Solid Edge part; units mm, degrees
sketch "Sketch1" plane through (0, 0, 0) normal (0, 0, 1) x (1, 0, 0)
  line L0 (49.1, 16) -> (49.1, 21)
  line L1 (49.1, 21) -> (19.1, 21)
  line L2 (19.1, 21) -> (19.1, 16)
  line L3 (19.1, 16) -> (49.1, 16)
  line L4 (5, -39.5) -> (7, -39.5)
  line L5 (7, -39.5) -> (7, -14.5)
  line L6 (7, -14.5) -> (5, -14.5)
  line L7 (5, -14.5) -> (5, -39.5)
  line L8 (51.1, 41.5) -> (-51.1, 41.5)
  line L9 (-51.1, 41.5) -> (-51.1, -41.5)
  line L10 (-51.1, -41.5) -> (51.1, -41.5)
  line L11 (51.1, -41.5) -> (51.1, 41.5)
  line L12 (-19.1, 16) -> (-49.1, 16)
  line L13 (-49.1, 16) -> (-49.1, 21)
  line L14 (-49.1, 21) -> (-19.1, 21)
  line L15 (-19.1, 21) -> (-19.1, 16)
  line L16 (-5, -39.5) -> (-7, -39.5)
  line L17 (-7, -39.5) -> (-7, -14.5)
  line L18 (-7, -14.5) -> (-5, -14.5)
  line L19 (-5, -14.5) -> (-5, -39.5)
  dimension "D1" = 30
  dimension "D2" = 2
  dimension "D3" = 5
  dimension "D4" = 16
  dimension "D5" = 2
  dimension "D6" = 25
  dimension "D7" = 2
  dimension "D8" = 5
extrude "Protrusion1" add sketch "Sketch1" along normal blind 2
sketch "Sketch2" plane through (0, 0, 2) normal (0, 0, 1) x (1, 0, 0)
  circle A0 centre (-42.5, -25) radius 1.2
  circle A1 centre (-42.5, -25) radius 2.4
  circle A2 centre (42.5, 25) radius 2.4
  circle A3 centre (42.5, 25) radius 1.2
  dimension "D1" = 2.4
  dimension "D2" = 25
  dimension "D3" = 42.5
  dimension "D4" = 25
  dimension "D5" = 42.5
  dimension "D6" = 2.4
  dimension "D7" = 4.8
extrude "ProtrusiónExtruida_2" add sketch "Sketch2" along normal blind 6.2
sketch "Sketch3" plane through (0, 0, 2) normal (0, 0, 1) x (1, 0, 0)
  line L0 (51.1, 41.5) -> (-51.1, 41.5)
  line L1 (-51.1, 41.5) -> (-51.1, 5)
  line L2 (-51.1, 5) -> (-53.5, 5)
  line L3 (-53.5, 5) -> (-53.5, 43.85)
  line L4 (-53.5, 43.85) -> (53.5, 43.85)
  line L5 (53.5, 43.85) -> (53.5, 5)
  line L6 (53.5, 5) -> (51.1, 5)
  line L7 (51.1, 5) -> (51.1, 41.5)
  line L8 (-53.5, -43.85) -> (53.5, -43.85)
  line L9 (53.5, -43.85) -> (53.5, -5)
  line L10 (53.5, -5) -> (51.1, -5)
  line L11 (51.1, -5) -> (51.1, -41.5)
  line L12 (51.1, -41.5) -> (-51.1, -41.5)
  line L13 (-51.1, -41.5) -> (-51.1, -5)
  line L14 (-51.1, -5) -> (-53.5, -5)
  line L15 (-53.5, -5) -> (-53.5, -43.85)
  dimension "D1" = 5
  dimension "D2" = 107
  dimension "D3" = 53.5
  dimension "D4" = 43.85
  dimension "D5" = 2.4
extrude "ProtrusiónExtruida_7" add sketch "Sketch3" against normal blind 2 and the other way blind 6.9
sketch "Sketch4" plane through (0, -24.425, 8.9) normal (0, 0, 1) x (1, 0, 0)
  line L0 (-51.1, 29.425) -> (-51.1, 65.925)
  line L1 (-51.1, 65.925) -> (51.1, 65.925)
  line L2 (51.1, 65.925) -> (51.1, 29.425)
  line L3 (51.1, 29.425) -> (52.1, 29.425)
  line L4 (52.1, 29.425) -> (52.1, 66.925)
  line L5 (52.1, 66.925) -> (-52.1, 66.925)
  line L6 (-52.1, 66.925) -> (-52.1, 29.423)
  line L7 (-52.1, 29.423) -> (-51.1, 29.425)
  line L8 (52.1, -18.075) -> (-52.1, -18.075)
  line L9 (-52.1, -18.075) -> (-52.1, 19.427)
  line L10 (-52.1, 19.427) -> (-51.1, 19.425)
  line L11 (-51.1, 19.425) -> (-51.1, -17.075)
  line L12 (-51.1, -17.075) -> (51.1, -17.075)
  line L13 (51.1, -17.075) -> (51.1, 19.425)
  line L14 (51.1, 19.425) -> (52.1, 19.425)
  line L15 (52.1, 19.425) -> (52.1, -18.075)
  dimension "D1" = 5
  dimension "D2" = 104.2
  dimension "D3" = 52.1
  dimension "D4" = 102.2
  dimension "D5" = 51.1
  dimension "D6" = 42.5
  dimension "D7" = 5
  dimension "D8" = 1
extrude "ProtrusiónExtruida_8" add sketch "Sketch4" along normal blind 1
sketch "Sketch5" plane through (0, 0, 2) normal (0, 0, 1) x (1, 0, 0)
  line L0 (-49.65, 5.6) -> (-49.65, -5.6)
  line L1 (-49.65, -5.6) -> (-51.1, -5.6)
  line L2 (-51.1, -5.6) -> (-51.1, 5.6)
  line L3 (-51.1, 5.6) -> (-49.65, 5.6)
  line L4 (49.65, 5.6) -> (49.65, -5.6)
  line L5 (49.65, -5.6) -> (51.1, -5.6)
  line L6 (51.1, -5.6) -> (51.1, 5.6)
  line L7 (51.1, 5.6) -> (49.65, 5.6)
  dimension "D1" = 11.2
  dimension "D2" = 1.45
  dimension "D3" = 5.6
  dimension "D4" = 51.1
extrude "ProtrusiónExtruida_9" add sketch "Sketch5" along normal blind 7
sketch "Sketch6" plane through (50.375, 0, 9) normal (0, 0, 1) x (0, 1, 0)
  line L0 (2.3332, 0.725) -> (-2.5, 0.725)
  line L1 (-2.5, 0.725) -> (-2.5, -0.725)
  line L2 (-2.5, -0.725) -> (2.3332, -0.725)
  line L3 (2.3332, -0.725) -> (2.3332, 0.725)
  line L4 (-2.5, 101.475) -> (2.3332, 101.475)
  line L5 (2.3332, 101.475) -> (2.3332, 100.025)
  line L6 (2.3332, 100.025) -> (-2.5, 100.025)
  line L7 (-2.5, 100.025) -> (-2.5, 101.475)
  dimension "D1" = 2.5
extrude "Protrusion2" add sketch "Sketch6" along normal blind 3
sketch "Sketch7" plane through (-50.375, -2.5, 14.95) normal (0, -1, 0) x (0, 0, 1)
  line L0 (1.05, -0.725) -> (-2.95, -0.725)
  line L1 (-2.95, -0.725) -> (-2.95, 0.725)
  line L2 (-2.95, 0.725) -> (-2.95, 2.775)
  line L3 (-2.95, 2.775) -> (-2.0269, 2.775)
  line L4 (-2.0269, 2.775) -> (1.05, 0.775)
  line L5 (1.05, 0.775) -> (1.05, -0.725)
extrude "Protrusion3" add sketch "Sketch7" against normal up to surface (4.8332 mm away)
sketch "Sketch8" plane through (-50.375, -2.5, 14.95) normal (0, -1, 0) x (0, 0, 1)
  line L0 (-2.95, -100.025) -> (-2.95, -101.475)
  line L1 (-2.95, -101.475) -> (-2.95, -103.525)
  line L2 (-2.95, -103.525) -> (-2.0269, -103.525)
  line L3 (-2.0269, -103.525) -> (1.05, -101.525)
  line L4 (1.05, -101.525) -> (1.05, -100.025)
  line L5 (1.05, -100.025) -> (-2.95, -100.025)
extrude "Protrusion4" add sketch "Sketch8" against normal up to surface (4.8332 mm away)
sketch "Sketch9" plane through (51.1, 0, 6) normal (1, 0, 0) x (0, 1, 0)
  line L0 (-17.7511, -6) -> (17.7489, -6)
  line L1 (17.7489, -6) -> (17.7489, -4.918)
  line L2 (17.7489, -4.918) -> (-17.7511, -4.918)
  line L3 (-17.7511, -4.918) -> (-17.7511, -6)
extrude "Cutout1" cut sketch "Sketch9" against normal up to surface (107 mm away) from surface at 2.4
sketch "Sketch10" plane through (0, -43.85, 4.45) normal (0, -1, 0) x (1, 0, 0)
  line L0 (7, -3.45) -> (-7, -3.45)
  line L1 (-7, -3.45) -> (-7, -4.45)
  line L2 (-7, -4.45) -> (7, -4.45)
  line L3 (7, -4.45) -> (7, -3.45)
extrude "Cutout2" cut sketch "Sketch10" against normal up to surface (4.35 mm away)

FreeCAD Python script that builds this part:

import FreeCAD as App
import Part
import Sketcher
from FreeCAD import Vector

doc = App.newDocument("Part")
body = doc.addObject("PartDesign::Body", "Body")

sketch1 = body.newObject("Sketcher::SketchObject", "Sketch")
sketch1.AttachmentSupport = (doc.getObject("XY_Plane"), [""])
sketch1.MapMode = "FlatFace"
sketch1.addGeometry([
    Part.LineSegment(Vector(51.1, -41.5, 0), Vector(51.1, 41.5, 0)),
    Part.LineSegment(Vector(51.1, 41.5, 0), Vector(-51.1, 41.5, 0)),
    Part.LineSegment(Vector(-51.1, 41.5, 0), Vector(-51.1, -41.5, 0)),
    Part.LineSegment(Vector(-51.1, -41.5, 0), Vector(51.1, -41.5, 0)),
    Part.LineSegment(Vector(-5, -14.5, 0), Vector(-5, -39.5, 0)),
    Part.LineSegment(Vector(-5, -39.5, 0), Vector(-7, -39.5, 0)),
    Part.LineSegment(Vector(-7, -39.5, 0), Vector(-7, -14.5, 0)),
    Part.LineSegment(Vector(-7, -14.5, 0), Vector(-5, -14.5, 0)),
    Part.LineSegment(Vector(7, -39.5, 0), Vector(5, -39.5, 0)),
    Part.LineSegment(Vector(5, -39.5, 0), Vector(5, -14.5, 0)),
    Part.LineSegment(Vector(5, -14.5, 0), Vector(7, -14.5, 0)),
    Part.LineSegment(Vector(7, -14.5, 0), Vector(7, -39.5, 0)),
    Part.LineSegment(Vector(-19.1, 21, 0), Vector(-19.1, 16, 0)),
    Part.LineSegment(Vector(-19.1, 16, 0), Vector(-49.1, 16, 0)),
    Part.LineSegment(Vector(-49.1, 16, 0), Vector(-49.1, 21, 0)),
    Part.LineSegment(Vector(-49.1, 21, 0), Vector(-19.1, 21, 0)),
    Part.LineSegment(Vector(49.1, 21, 0), Vector(49.1, 16, 0)),
    Part.LineSegment(Vector(49.1, 16, 0), Vector(19.1, 16, 0)),
    Part.LineSegment(Vector(19.1, 16, 0), Vector(19.1, 21, 0)),
    Part.LineSegment(Vector(19.1, 21, 0), Vector(49.1, 21, 0)),
], False)
sketch1.addConstraint([
    Sketcher.Constraint("Coincident", 0, 2, 1, 1),
    Sketcher.Constraint("Coincident", 1, 2, 2, 1),
    Sketcher.Constraint("Coincident", 2, 2, 3, 1),
    Sketcher.Constraint("Coincident", 3, 2, 0, 1),
    Sketcher.Constraint("Coincident", 4, 2, 5, 1),
    Sketcher.Constraint("Coincident", 5, 2, 6, 1),
    Sketcher.Constraint("Coincident", 6, 2, 7, 1),
    Sketcher.Constraint("Coincident", 7, 2, 4, 1),
    Sketcher.Constraint("Coincident", 8, 2, 9, 1),
    Sketcher.Constraint("Coincident", 9, 2, 10, 1),
    Sketcher.Constraint("Coincident", 10, 2, 11, 1),
    Sketcher.Constraint("Coincident", 11, 2, 8, 1),
    Sketcher.Constraint("Coincident", 12, 2, 13, 1),
    Sketcher.Constraint("Coincident", 13, 2, 14, 1),
    Sketcher.Constraint("Coincident", 14, 2, 15, 1),
    Sketcher.Constraint("Coincident", 15, 2, 12, 1),
    Sketcher.Constraint("Coincident", 16, 2, 17, 1),
    Sketcher.Constraint("Coincident", 17, 2, 18, 1),
    Sketcher.Constraint("Coincident", 18, 2, 19, 1),
    Sketcher.Constraint("Coincident", 19, 2, 16, 1),
    Sketcher.Constraint("Vertical", 0),
    Sketcher.Constraint("Horizontal", 1),
    Sketcher.Constraint("Vertical", 2),
    Sketcher.Constraint("Horizontal", 3),
    Sketcher.Constraint("Vertical", 4),
    Sketcher.Constraint("Horizontal", 5),
    Sketcher.Constraint("Vertical", 6),
    Sketcher.Constraint("Horizontal", 7),
    Sketcher.Constraint("Horizontal", 8),
    Sketcher.Constraint("Vertical", 9),
    Sketcher.Constraint("Horizontal", 10),
    Sketcher.Constraint("Vertical", 11),
    Sketcher.Constraint("Vertical", 12),
    Sketcher.Constraint("Horizontal", 13),
    Sketcher.Constraint("Vertical", 14),
    Sketcher.Constraint("Horizontal", 15),
    Sketcher.Constraint("Vertical", 16),
    Sketcher.Constraint("Horizontal", 17),
    Sketcher.Constraint("Vertical", 18),
    Sketcher.Constraint("Horizontal", 19),
    Sketcher.Constraint("Symmetric", 0, 2, 2, 2, -1, 1),
    Sketcher.Constraint("Symmetric", 4, 2, 8, 2, -2),
    Sketcher.Constraint("Symmetric", 6, 2, 10, 2, -2),
    Sketcher.Constraint("Symmetric", 13, 2, 16, 2, -2),
    Sketcher.Constraint("Symmetric", 15, 2, 18, 2, -2),
    Sketcher.Constraint("DistanceX", 5, 2, 5, 1, 2.0),
    Sketcher.Constraint("DistanceX", 13, 2, 13, 1, 30.0),
    Sketcher.Constraint("DistanceY", 0, 1, 0, 2, 83.0),
    Sketcher.Constraint("DistanceY", 4, 2, 4, 1, 25.0),
    Sketcher.Constraint("DistanceY", 12, 2, 12, 1, 5.0),
    Sketcher.Constraint("DistanceX", 1, 2, 1, 1, 102.2),
    Sketcher.Constraint("DistanceX", 4, 2, -1, 1, 5.0),
    Sketcher.Constraint("DistanceY", -1, 1, 12, 2, 16.0),
    Sketcher.Constraint("DistanceY", 2, 2, 4, 2, 2.0),
    Sketcher.Constraint("DistanceX", 1, 2, 12, 2, 32.0),
])
pad1 = body.newObject("PartDesign::Pad", "Pad")
pad1.Profile = sketch1
pad1.Length = 2

sketch2 = body.newObject("Sketcher::SketchObject", "Sketch001")
sketch2.AttachmentSupport = (doc.getObject("XY_Plane"), [""])
sketch2.MapMode = "FlatFace"
sketch2.AttachmentOffset = App.Placement(Vector(0, 0, 2), App.Rotation())
sketch2.addGeometry([
    Part.Circle(Vector(-42.5, -25, 0), Vector(0, 0, 1), 2.4),
    Part.Circle(Vector(-42.5, -25, 0), Vector(0, 0, 1), 1.2),
    Part.Circle(Vector(42.5, 25, 0), Vector(0, 0, 1), 2.4),
    Part.Circle(Vector(42.5, 25, 0), Vector(0, 0, 1), 1.2),
], False)
sketch2.addConstraint([
    Sketcher.Constraint("Coincident", 1, 3, 0, 3),
    Sketcher.Constraint("Coincident", 3, 3, 2, 3),
    Sketcher.Constraint("Equal", 0, 2),
    Sketcher.Constraint("Equal", 1, 3),
    Sketcher.Constraint("Symmetric", 0, 3, 2, 3, -1, 1),
    Sketcher.Constraint("Diameter", 0, 4.8),
    Sketcher.Constraint("Diameter", 1, 2.4),
    Sketcher.Constraint("DistanceY", 0, 3, -1, 1, 25.0),
    Sketcher.Constraint("DistanceX", 0, 3, 2, 3, 85.0),
])
pad2 = body.newObject("PartDesign::Pad", "Pad001")
pad2.Profile = sketch2
pad2.Length = 6.2

sketch3 = body.newObject("Sketcher::SketchObject", "Sketch002")
sketch3.AttachmentSupport = (doc.getObject("XY_Plane"), [""])
sketch3.MapMode = "FlatFace"
sketch3.AttachmentOffset = App.Placement(Vector(0, 0, 2), App.Rotation())
sketch3.addGeometry([
    Part.LineSegment(Vector(-51.1, 41.5, 0), Vector(51.1, 41.5, 0)),
    Part.LineSegment(Vector(51.1, 41.5, 0), Vector(51.1, 5, 0)),
    Part.LineSegment(Vector(51.1, 5, 0), Vector(53.5, 5, 0)),
    Part.LineSegment(Vector(53.5, 5, 0), Vector(53.5, 43.85, 0)),
    Part.LineSegment(Vector(53.5, 43.85, 0), Vector(-53.5, 43.85, 0)),
    Part.LineSegment(Vector(-53.5, 43.85, 0), Vector(-53.5, 5, 0)),
    Part.LineSegment(Vector(-53.5, 5, 0), Vector(-51.1, 5, 0)),
    Part.LineSegment(Vector(-51.1, 5, 0), Vector(-51.1, 41.5, 0)),
    Part.LineSegment(Vector(-53.5, -5, 0), Vector(-53.5, -43.85, 0)),
    Part.LineSegment(Vector(-53.5, -43.85, 0), Vector(53.5, -43.85, 0)),
    Part.LineSegment(Vector(53.5, -43.85, 0), Vector(53.5, -5, 0)),
    Part.LineSegment(Vector(53.5, -5, 0), Vector(51.1, -5, 0)),
    Part.LineSegment(Vector(51.1, -5, 0), Vector(51.1, -41.5, 0)),
    Part.LineSegment(Vector(51.1, -41.5, 0), Vector(-51.1, -41.5, 0)),
    Part.LineSegment(Vector(-51.1, -41.5, 0), Vector(-51.1, -5, 0)),
    Part.LineSegment(Vector(-51.1, -5, 0), Vector(-53.5, -5, 0)),
], False)
sketch3.addConstraint([
    Sketcher.Constraint("Coincident", 0, 2, 1, 1),
    Sketcher.Constraint("Coincident", 1, 2, 2, 1),
    Sketcher.Constraint("Coincident", 2, 2, 3, 1),
    Sketcher.Constraint("Coincident", 3, 2, 4, 1),
    Sketcher.Constraint("Coincident", 4, 2, 5, 1),
    Sketcher.Constraint("Coincident", 5, 2, 6, 1),
    Sketcher.Constraint("Coincident", 6, 2, 7, 1),
    Sketcher.Constraint("Coincident", 7, 2, 0, 1),
    Sketcher.Constraint("Coincident", 8, 2, 9, 1),
    Sketcher.Constraint("Coincident", 9, 2, 10, 1),
    Sketcher.Constraint("Coincident", 10, 2, 11, 1),
    Sketcher.Constraint("Coincident", 11, 2, 12, 1),
    Sketcher.Constraint("Coincident", 12, 2, 13, 1),
    Sketcher.Constraint("Coincident", 13, 2, 14, 1),
    Sketcher.Constraint("Coincident", 14, 2, 15, 1),
    Sketcher.Constraint("Coincident", 15, 2, 8, 1),
    Sketcher.Constraint("Horizontal", 0),
    Sketcher.Constraint("Vertical", 1),
    Sketcher.Constraint("Horizontal", 2),
    Sketcher.Constraint("Vertical", 3),
    Sketcher.Constraint("Horizontal", 4),
    Sketcher.Constraint("Vertical", 5),
    Sketcher.Constraint("Horizontal", 6),
    Sketcher.Constraint("Vertical", 7),
    Sketcher.Constraint("Vertical", 8),
    Sketcher.Constraint("Horizontal", 9),
    Sketcher.Constraint("Vertical", 10),
    Sketcher.Constraint("Horizontal", 11),
    Sketcher.Constraint("Vertical", 12),
    Sketcher.Constraint("Horizontal", 13),
    Sketcher.Constraint("Vertical", 14),
    Sketcher.Constraint("Horizontal", 15),
    Sketcher.Constraint("Symmetric", 3, 2, 8, 2, -1, 1),
    Sketcher.Constraint("Symmetric", 5, 2, 10, 2, -1, 1),
    Sketcher.Constraint("Symmetric", 7, 2, 12, 2, -1, 1),
    Sketcher.Constraint("Symmetric", 1, 2, 14, 2, -1, 1),
    Sketcher.Constraint("Symmetric", 2, 2, 5, 2, -2),
    Sketcher.Constraint("Vertical", 1, 2, 11, 2),
    Sketcher.Constraint("DistanceX", 4, 2, 4, 1, 107.0),
    Sketcher.Constraint("DistanceX", 0, 1, 0, 2, 102.2),
    Sketcher.Constraint("DistanceY", 1, 2, 1, 1, 36.5),
    Sketcher.Constraint("DistanceY", -1, 1, 1, 2, 5.0),
    Sketcher.Constraint("DistanceY", 3, 1, 3, 2, 38.85),
])
pad3 = body.newObject("PartDesign::Pad", "Pad002")
pad3.Profile = sketch3
pad3.Type = "TwoLengths"
pad3.Length = 2
pad3.Length2 = 6.9
pad3.Reversed = True

sketch4 = body.newObject("Sketcher::SketchObject", "Sketch003")
sketch4.AttachmentSupport = (doc.getObject("XY_Plane"), [""])
sketch4.MapMode = "FlatFace"
sketch4.AttachmentOffset = App.Placement(Vector(0, 0, 8.9), App.Rotation())
sketch4.addGeometry([
    Part.LineSegment(Vector(-52.1, 4.998, 0), Vector(-51.1, 5, 0)),
    Part.LineSegment(Vector(-51.1, 5, 0), Vector(-51.1, 41.5, 0)),
    Part.LineSegment(Vector(-51.1, 41.5, 0), Vector(51.1, 41.5, 0)),
    Part.LineSegment(Vector(51.1, 41.5, 0), Vector(51.1, 5, 0)),
    Part.LineSegment(Vector(51.1, 5, 0), Vector(52.1, 5, 0)),
    Part.LineSegment(Vector(52.1, 5, 0), Vector(52.1, 42.5, 0)),
    Part.LineSegment(Vector(52.1, 42.5, 0), Vector(-52.1, 42.5, 0)),
    Part.LineSegment(Vector(-52.1, 42.5, 0), Vector(-52.1, 4.998, 0)),
    Part.LineSegment(Vector(-52.1, -42.5, 0), Vector(52.1, -42.5, 0)),
    Part.LineSegment(Vector(52.1, -42.5, 0), Vector(52.1, -5, 0)),
    Part.LineSegment(Vector(52.1, -5, 0), Vector(51.1, -5, 0)),
    Part.LineSegment(Vector(51.1, -5, 0), Vector(51.1, -41.5, 0)),
    Part.LineSegment(Vector(51.1, -41.5, 0), Vector(-51.1, -41.5, 0)),
    Part.LineSegment(Vector(-51.1, -41.5, 0), Vector(-51.1, -5, 0)),
    Part.LineSegment(Vector(-51.1, -5, 0), Vector(-52.1, -4.998, 0)),
    Part.LineSegment(Vector(-52.1, -4.998, 0), Vector(-52.1, -42.5, 0)),
], False)
sketch4.addConstraint([
    Sketcher.Constraint("Coincident", 0, 2, 1, 1),
    Sketcher.Constraint("Coincident", 1, 2, 2, 1),
    Sketcher.Constraint("Coincident", 2, 2, 3, 1),
    Sketcher.Constraint("Coincident", 3, 2, 4, 1),
    Sketcher.Constraint("Coincident", 4, 2, 5, 1),
    Sketcher.Constraint("Coincident", 5, 2, 6, 1),
    Sketcher.Constraint("Coincident", 6, 2, 7, 1),
    Sketcher.Constraint("Coincident", 7, 2, 0, 1),
    Sketcher.Constraint("Coincident", 8, 2, 9, 1),
    Sketcher.Constraint("Coincident", 9, 2, 10, 1),
    Sketcher.Constraint("Coincident", 10, 2, 11, 1),
    Sketcher.Constraint("Coincident", 11, 2, 12, 1),
    Sketcher.Constraint("Coincident", 12, 2, 13, 1),
    Sketcher.Constraint("Coincident", 13, 2, 14, 1),
    Sketcher.Constraint("Coincident", 14, 2, 15, 1),
    Sketcher.Constraint("Coincident", 15, 2, 8, 1),
    Sketcher.Constraint("Vertical", 1),
    Sketcher.Constraint("Horizontal", 2),
    Sketcher.Constraint("Vertical", 3),
    Sketcher.Constraint("Horizontal", 4),
    Sketcher.Constraint("Vertical", 5),
    Sketcher.Constraint("Horizontal", 6),
    Sketcher.Constraint("Vertical", 7),
    Sketcher.Constraint("Horizontal", 8),
    Sketcher.Constraint("Vertical", 9),
    Sketcher.Constraint("Horizontal", 10),
    Sketcher.Constraint("Vertical", 11),
    Sketcher.Constraint("Horizontal", 12),
    Sketcher.Constraint("Vertical", 13),
    Sketcher.Constraint("Vertical", 15),
    Sketcher.Constraint("Symmetric", 6, 2, 8, 2, -1, 1),
    Sketcher.Constraint("Symmetric", 0, 2, 10, 2, -1, 1),
    Sketcher.Constraint("Symmetric", 2, 2, 12, 2, -1, 1),
    Sketcher.Constraint("Symmetric", 0, 2, 3, 2, -2),
    Sketcher.Constraint("Symmetric", 7, 2, 14, 2, -1),
    Sketcher.Constraint("Horizontal", 10, 2, 13, 2),
    Sketcher.Constraint("Vertical", 5, 2, 8, 2),
    Sketcher.Constraint("DistanceX", 4, 1, 4, 2, 1.0),
    Sketcher.Constraint("DistanceX", 2, 1, 2, 2, 102.2),
    Sketcher.Constraint("DistanceY", 1, 1, 1, 2, 36.5),
    Sketcher.Constraint("DistanceY", 5, 1, 5, 2, 37.5),
    Sketcher.Constraint("DistanceY", -1, 1, 0, 2, 5.0),
    Sketcher.Constraint("DistanceY", 7, 2, 7, 1, 37.502),
])
pad4 = body.newObject("PartDesign::Pad", "Pad003")
pad4.Profile = sketch4
pad4.Length = 1

sketch5 = body.newObject("Sketcher::SketchObject", "Sketch004")
sketch5.AttachmentSupport = (doc.getObject("XY_Plane"), [""])
sketch5.MapMode = "FlatFace"
sketch5.AttachmentOffset = App.Placement(Vector(0, 0, 2), App.Rotation())
sketch5.addGeometry([
    Part.LineSegment(Vector(-49.65, -5.6, 0), Vector(-49.65, 5.6, 0)),
    Part.LineSegment(Vector(-49.65, 5.6, 0), Vector(-51.1, 5.6, 0)),
    Part.LineSegment(Vector(-51.1, 5.6, 0), Vector(-51.1, -5.6, 0)),
    Part.LineSegment(Vector(-51.1, -5.6, 0), Vector(-49.65, -5.6, 0)),
    Part.LineSegment(Vector(51.1, 5.6, 0), Vector(49.65, 5.6, 0)),
    Part.LineSegment(Vector(49.65, 5.6, 0), Vector(49.65, -5.6, 0)),
    Part.LineSegment(Vector(49.65, -5.6, 0), Vector(51.1, -5.6, 0)),
    Part.LineSegment(Vector(51.1, -5.6, 0), Vector(51.1, 5.6, 0)),
], False)
sketch5.addConstraint([
    Sketcher.Constraint("Coincident", 0, 2, 1, 1),
    Sketcher.Constraint("Coincident", 1, 2, 2, 1),
    Sketcher.Constraint("Coincident", 2, 2, 3, 1),
    Sketcher.Constraint("Coincident", 3, 2, 0, 1),
    Sketcher.Constraint("Coincident", 4, 2, 5, 1),
    Sketcher.Constraint("Coincident", 5, 2, 6, 1),
    Sketcher.Constraint("Coincident", 6, 2, 7, 1),
    Sketcher.Constraint("Coincident", 7, 2, 4, 1),
    Sketcher.Constraint("Vertical", 0),
    Sketcher.Constraint("Horizontal", 1),
    Sketcher.Constraint("Vertical", 2),
    Sketcher.Constraint("Horizontal", 3),
    Sketcher.Constraint("Horizontal", 4),
    Sketcher.Constraint("Vertical", 5),
    Sketcher.Constraint("Horizontal", 6),
    Sketcher.Constraint("Vertical", 7),
    Sketcher.Constraint("Symmetric", 3, 2, 4, 2, -1, 1),
    Sketcher.Constraint("Symmetric", 1, 2, 6, 2, -1, 1),
    Sketcher.Constraint("Horizontal", 1, 2, 4, 2),
    Sketcher.Constraint("DistanceY", 0, 1, 0, 2, 11.2),
    Sketcher.Constraint("DistanceX", 1, 2, 1, 1, 1.45),
    Sketcher.Constraint("DistanceX", 1, 2, -1, 1, 51.1),
])
pad5 = body.newObject("PartDesign::Pad", "Pad004")
pad5.Profile = sketch5
pad5.Length = 7

sketch6 = body.newObject("Sketcher::SketchObject", "Sketch005")
sketch6.AttachmentSupport = (doc.getObject("XY_Plane"), [""])
sketch6.MapMode = "FlatFace"
sketch6.AttachmentOffset = App.Placement(Vector(0, 0, 9), App.Rotation())
sketch6.addGeometry([
    Part.LineSegment(Vector(51.1, 2.3332, 0), Vector(49.65, 2.3332, 0)),
    Part.LineSegment(Vector(49.65, 2.3332, 0), Vector(49.65, -2.5, 0)),
    Part.LineSegment(Vector(49.65, -2.5, 0), Vector(51.1, -2.5, 0)),
    Part.LineSegment(Vector(51.1, -2.5, 0), Vector(51.1, 2.3332, 0)),
    Part.LineSegment(Vector(-51.1, 2.3332, 0), Vector(-51.1, -2.5, 0)),
    Part.LineSegment(Vector(-51.1, -2.5, 0), Vector(-49.65, -2.5, 0)),
    Part.LineSegment(Vector(-49.65, -2.5, 0), Vector(-49.65, 2.3332, 0)),
    Part.LineSegment(Vector(-49.65, 2.3332, 0), Vector(-51.1, 2.3332, 0)),
], False)
sketch6.addConstraint([
    Sketcher.Constraint("Coincident", 0, 2, 1, 1),
    Sketcher.Constraint("Coincident", 1, 2, 2, 1),
    Sketcher.Constraint("Coincident", 2, 2, 3, 1),
    Sketcher.Constraint("Coincident", 3, 2, 0, 1),
    Sketcher.Constraint("Coincident", 4, 2, 5, 1),
    Sketcher.Constraint("Coincident", 5, 2, 6, 1),
    Sketcher.Constraint("Coincident", 6, 2, 7, 1),
    Sketcher.Constraint("Coincident", 7, 2, 4, 1),
    Sketcher.Constraint("Horizontal", 0),
    Sketcher.Constraint("Vertical", 1),
    Sketcher.Constraint("Horizontal", 2),
    Sketcher.Constraint("Vertical", 3),
    Sketcher.Constraint("Vertical", 4),
    Sketcher.Constraint("Horizontal", 5),
    Sketcher.Constraint("Vertical", 6),
    Sketcher.Constraint("Horizontal", 7),
    Sketcher.Constraint("Symmetric", 2, 2, 4, 2, -2),
    Sketcher.Constraint("Symmetric", 0, 2, 6, 2, -2),
    Sketcher.Constraint("DistanceX", 0, 2, 0, 1, 1.45),
    Sketcher.Constraint("DistanceY", 1, 2, -1, 1, 2.5),
    Sketcher.Constraint("DistanceX", -1, 1, 2, 2, 51.1),
    Sketcher.Constraint("DistanceY", 1, 2, 1, 1, 4.8332),
])
pad6 = body.newObject("PartDesign::Pad", "Pad005")
pad6.Profile = sketch6
pad6.Length = 3

sketch7 = body.newObject("Sketcher::SketchObject", "Sketch006")
sketch7.AttachmentSupport = (doc.getObject("XZ_Plane"), [""])
sketch7.MapMode = "FlatFace"
sketch7.AttachmentOffset = App.Placement(Vector(0, 0, 2.5), App.Rotation())
sketch7.addGeometry([
    Part.LineSegment(Vector(-49.65, 12, 0), Vector(-49.65, 16, 0)),
    Part.LineSegment(Vector(-49.65, 16, 0), Vector(-51.15, 16, 0)),
    Part.LineSegment(Vector(-51.15, 16, 0), Vector(-53.15, 12.9231, 0)),
    Part.LineSegment(Vector(-53.15, 12.9231, 0), Vector(-53.15, 12, 0)),
    Part.LineSegment(Vector(-53.15, 12, 0), Vector(-49.65, 12, 0)),
], False)
sketch7.addConstraint([
    Sketcher.Constraint("Coincident", 0, 2, 1, 1),
    Sketcher.Constraint("Coincident", 1, 2, 2, 1),
    Sketcher.Constraint("Coincident", 2, 2, 3, 1),
    Sketcher.Constraint("Coincident", 3, 2, 4, 1),
    Sketcher.Constraint("Coincident", 4, 2, 0, 1),
    Sketcher.Constraint("Vertical", 0),
    Sketcher.Constraint("Horizontal", 1),
    Sketcher.Constraint("Vertical", 3),
    Sketcher.Constraint("Horizontal", 4),
    Sketcher.Constraint("DistanceY", 0, 1, 0, 2, 4.0),
    Sketcher.Constraint("DistanceX", 1, 2, 1, 1, 1.5),
    Sketcher.Constraint("DistanceX", 4, 1, 4, 2, 3.5),
    Sketcher.Constraint("DistanceY", -1, 1, 0, 2, 16.0),
    Sketcher.Constraint("DistanceY", 3, 2, 3, 1, 0.923),
    Sketcher.Constraint("DistanceX", 0, 2, -1, 1, 49.65),
])
pad7 = body.newObject("PartDesign::Pad", "Pad006")
pad7.Profile = sketch7
pad7.Length = 4.8332
pad7.Reversed = True

sketch8 = body.newObject("Sketcher::SketchObject", "Sketch007")
sketch8.AttachmentSupport = (doc.getObject("XZ_Plane"), [""])
sketch8.MapMode = "FlatFace"
sketch8.AttachmentOffset = App.Placement(Vector(0, 0, 2.5), App.Rotation())
sketch8.addGeometry([
    Part.LineSegment(Vector(49.65, 16, 0), Vector(49.65, 12, 0)),
    Part.LineSegment(Vector(49.65, 12, 0), Vector(53.15, 12, 0)),
    Part.LineSegment(Vector(53.15, 12, 0), Vector(53.15, 12.9231, 0)),
    Part.LineSegment(Vector(53.15, 12.9231, 0), Vector(51.15, 16, 0)),
    Part.LineSegment(Vector(51.15, 16, 0), Vector(49.65, 16, 0)),
], False)
sketch8.addConstraint([
    Sketcher.Constraint("Coincident", 0, 2, 1, 1),
    Sketcher.Constraint("Coincident", 1, 2, 2, 1),
    Sketcher.Constraint("Coincident", 2, 2, 3, 1),
    Sketcher.Constraint("Coincident", 3, 2, 4, 1),
    Sketcher.Constraint("Coincident", 4, 2, 0, 1),
    Sketcher.Constraint("Vertical", 0),
    Sketcher.Constraint("Horizontal", 1),
    Sketcher.Constraint("Vertical", 2),
    Sketcher.Constraint("Horizontal", 4),
    Sketcher.Constraint("DistanceY", 0, 2, 0, 1, 4.0),
    Sketcher.Constraint("DistanceX", 1, 1, 1, 2, 3.5),
    Sketcher.Constraint("DistanceX", 4, 2, 4, 1, 1.5),
    Sketcher.Constraint("DistanceY", -1, 1, 0, 2, 12.0),
    Sketcher.Constraint("DistanceY", 2, 1, 2, 2, 0.923),
    Sketcher.Constraint("DistanceX", -1, 1, 0, 2, 49.65),
])
pad8 = body.newObject("PartDesign::Pad", "Pad007")
pad8.Profile = sketch8
pad8.Length = 4.8332
pad8.Reversed = True

sketch9 = body.newObject("Sketcher::SketchObject", "Sketch008")
sketch9.AttachmentSupport = (doc.getObject("YZ_Plane"), [""])
sketch9.MapMode = "FlatFace"
sketch9.AttachmentOffset = App.Placement(Vector(0, 0, 53.5), App.Rotation())
sketch9.addGeometry([
    Part.LineSegment(Vector(-17.7511, 1.082, 0), Vector(-17.7511, 0, 0)),
    Part.LineSegment(Vector(-17.7511, 0, 0), Vector(17.7489, 0, 0)),
    Part.LineSegment(Vector(17.7489, 0, 0), Vector(17.7489, 1.082, 0)),
    Part.LineSegment(Vector(17.7489, 1.082, 0), Vector(-17.7511, 1.082, 0)),
], False)
sketch9.addConstraint([
    Sketcher.Constraint("Coincident", 0, 2, 1, 1),
    Sketcher.Constraint("Coincident", 1, 2, 2, 1),
    Sketcher.Constraint("Coincident", 2, 2, 3, 1),
    Sketcher.Constraint("Coincident", 3, 2, 0, 1),
    Sketcher.Constraint("Vertical", 0),
    Sketcher.Constraint("Horizontal", 1),
    Sketcher.Constraint("Vertical", 2),
    Sketcher.Constraint("Horizontal", 3),
    Sketcher.Constraint("PointOnObject", 0, 2, -1),
    Sketcher.Constraint("DistanceX", 1, 1, 1, 2, 35.5),
    Sketcher.Constraint("DistanceY", 0, 2, 0, 1, 1.082),
    Sketcher.Constraint("DistanceX", 0, 2, -1, 1, 17.751),
])
pocket1 = body.newObject("PartDesign::Pocket", "Pocket")
pocket1.Profile = sketch9
pocket1.Length = 107

sketch10 = body.newObject("Sketcher::SketchObject", "Sketch009")
sketch10.AttachmentSupport = (doc.getObject("XZ_Plane"), [""])
sketch10.MapMode = "FlatFace"
sketch10.AttachmentOffset = App.Placement(Vector(0, 0, 43.85), App.Rotation())
sketch10.addGeometry([
    Part.LineSegment(Vector(7, 0, 0), Vector(7, 1, 0)),
    Part.LineSegment(Vector(7, 1, 0), Vector(-7, 1, 0)),
    Part.LineSegment(Vector(-7, 1, 0), Vector(-7, 0, 0)),
    Part.LineSegment(Vector(-7, 0, 0), Vector(7, 0, 0)),
], False)
sketch10.addConstraint([
    Sketcher.Constraint("Coincident", 0, 2, 1, 1),
    Sketcher.Constraint("Coincident", 1, 2, 2, 1),
    Sketcher.Constraint("Coincident", 2, 2, 3, 1),
    Sketcher.Constraint("Coincident", 3, 2, 0, 1),
    Sketcher.Constraint("Vertical", 0),
    Sketcher.Constraint("Horizontal", 1),
    Sketcher.Constraint("Vertical", 2),
    Sketcher.Constraint("Horizontal", 3),
    Sketcher.Constraint("Symmetric", 2, 2, 3, 2, -1, 1),
    Sketcher.Constraint("DistanceX", 1, 2, 1, 1, 14.0),
    Sketcher.Constraint("DistanceY", 0, 1, 0, 2, 1.0),
])
pocket2 = body.newObject("PartDesign::Pocket", "Pocket001")
pocket2.Profile = sketch10
pocket2.Length = 4.35

doc.recompute()
